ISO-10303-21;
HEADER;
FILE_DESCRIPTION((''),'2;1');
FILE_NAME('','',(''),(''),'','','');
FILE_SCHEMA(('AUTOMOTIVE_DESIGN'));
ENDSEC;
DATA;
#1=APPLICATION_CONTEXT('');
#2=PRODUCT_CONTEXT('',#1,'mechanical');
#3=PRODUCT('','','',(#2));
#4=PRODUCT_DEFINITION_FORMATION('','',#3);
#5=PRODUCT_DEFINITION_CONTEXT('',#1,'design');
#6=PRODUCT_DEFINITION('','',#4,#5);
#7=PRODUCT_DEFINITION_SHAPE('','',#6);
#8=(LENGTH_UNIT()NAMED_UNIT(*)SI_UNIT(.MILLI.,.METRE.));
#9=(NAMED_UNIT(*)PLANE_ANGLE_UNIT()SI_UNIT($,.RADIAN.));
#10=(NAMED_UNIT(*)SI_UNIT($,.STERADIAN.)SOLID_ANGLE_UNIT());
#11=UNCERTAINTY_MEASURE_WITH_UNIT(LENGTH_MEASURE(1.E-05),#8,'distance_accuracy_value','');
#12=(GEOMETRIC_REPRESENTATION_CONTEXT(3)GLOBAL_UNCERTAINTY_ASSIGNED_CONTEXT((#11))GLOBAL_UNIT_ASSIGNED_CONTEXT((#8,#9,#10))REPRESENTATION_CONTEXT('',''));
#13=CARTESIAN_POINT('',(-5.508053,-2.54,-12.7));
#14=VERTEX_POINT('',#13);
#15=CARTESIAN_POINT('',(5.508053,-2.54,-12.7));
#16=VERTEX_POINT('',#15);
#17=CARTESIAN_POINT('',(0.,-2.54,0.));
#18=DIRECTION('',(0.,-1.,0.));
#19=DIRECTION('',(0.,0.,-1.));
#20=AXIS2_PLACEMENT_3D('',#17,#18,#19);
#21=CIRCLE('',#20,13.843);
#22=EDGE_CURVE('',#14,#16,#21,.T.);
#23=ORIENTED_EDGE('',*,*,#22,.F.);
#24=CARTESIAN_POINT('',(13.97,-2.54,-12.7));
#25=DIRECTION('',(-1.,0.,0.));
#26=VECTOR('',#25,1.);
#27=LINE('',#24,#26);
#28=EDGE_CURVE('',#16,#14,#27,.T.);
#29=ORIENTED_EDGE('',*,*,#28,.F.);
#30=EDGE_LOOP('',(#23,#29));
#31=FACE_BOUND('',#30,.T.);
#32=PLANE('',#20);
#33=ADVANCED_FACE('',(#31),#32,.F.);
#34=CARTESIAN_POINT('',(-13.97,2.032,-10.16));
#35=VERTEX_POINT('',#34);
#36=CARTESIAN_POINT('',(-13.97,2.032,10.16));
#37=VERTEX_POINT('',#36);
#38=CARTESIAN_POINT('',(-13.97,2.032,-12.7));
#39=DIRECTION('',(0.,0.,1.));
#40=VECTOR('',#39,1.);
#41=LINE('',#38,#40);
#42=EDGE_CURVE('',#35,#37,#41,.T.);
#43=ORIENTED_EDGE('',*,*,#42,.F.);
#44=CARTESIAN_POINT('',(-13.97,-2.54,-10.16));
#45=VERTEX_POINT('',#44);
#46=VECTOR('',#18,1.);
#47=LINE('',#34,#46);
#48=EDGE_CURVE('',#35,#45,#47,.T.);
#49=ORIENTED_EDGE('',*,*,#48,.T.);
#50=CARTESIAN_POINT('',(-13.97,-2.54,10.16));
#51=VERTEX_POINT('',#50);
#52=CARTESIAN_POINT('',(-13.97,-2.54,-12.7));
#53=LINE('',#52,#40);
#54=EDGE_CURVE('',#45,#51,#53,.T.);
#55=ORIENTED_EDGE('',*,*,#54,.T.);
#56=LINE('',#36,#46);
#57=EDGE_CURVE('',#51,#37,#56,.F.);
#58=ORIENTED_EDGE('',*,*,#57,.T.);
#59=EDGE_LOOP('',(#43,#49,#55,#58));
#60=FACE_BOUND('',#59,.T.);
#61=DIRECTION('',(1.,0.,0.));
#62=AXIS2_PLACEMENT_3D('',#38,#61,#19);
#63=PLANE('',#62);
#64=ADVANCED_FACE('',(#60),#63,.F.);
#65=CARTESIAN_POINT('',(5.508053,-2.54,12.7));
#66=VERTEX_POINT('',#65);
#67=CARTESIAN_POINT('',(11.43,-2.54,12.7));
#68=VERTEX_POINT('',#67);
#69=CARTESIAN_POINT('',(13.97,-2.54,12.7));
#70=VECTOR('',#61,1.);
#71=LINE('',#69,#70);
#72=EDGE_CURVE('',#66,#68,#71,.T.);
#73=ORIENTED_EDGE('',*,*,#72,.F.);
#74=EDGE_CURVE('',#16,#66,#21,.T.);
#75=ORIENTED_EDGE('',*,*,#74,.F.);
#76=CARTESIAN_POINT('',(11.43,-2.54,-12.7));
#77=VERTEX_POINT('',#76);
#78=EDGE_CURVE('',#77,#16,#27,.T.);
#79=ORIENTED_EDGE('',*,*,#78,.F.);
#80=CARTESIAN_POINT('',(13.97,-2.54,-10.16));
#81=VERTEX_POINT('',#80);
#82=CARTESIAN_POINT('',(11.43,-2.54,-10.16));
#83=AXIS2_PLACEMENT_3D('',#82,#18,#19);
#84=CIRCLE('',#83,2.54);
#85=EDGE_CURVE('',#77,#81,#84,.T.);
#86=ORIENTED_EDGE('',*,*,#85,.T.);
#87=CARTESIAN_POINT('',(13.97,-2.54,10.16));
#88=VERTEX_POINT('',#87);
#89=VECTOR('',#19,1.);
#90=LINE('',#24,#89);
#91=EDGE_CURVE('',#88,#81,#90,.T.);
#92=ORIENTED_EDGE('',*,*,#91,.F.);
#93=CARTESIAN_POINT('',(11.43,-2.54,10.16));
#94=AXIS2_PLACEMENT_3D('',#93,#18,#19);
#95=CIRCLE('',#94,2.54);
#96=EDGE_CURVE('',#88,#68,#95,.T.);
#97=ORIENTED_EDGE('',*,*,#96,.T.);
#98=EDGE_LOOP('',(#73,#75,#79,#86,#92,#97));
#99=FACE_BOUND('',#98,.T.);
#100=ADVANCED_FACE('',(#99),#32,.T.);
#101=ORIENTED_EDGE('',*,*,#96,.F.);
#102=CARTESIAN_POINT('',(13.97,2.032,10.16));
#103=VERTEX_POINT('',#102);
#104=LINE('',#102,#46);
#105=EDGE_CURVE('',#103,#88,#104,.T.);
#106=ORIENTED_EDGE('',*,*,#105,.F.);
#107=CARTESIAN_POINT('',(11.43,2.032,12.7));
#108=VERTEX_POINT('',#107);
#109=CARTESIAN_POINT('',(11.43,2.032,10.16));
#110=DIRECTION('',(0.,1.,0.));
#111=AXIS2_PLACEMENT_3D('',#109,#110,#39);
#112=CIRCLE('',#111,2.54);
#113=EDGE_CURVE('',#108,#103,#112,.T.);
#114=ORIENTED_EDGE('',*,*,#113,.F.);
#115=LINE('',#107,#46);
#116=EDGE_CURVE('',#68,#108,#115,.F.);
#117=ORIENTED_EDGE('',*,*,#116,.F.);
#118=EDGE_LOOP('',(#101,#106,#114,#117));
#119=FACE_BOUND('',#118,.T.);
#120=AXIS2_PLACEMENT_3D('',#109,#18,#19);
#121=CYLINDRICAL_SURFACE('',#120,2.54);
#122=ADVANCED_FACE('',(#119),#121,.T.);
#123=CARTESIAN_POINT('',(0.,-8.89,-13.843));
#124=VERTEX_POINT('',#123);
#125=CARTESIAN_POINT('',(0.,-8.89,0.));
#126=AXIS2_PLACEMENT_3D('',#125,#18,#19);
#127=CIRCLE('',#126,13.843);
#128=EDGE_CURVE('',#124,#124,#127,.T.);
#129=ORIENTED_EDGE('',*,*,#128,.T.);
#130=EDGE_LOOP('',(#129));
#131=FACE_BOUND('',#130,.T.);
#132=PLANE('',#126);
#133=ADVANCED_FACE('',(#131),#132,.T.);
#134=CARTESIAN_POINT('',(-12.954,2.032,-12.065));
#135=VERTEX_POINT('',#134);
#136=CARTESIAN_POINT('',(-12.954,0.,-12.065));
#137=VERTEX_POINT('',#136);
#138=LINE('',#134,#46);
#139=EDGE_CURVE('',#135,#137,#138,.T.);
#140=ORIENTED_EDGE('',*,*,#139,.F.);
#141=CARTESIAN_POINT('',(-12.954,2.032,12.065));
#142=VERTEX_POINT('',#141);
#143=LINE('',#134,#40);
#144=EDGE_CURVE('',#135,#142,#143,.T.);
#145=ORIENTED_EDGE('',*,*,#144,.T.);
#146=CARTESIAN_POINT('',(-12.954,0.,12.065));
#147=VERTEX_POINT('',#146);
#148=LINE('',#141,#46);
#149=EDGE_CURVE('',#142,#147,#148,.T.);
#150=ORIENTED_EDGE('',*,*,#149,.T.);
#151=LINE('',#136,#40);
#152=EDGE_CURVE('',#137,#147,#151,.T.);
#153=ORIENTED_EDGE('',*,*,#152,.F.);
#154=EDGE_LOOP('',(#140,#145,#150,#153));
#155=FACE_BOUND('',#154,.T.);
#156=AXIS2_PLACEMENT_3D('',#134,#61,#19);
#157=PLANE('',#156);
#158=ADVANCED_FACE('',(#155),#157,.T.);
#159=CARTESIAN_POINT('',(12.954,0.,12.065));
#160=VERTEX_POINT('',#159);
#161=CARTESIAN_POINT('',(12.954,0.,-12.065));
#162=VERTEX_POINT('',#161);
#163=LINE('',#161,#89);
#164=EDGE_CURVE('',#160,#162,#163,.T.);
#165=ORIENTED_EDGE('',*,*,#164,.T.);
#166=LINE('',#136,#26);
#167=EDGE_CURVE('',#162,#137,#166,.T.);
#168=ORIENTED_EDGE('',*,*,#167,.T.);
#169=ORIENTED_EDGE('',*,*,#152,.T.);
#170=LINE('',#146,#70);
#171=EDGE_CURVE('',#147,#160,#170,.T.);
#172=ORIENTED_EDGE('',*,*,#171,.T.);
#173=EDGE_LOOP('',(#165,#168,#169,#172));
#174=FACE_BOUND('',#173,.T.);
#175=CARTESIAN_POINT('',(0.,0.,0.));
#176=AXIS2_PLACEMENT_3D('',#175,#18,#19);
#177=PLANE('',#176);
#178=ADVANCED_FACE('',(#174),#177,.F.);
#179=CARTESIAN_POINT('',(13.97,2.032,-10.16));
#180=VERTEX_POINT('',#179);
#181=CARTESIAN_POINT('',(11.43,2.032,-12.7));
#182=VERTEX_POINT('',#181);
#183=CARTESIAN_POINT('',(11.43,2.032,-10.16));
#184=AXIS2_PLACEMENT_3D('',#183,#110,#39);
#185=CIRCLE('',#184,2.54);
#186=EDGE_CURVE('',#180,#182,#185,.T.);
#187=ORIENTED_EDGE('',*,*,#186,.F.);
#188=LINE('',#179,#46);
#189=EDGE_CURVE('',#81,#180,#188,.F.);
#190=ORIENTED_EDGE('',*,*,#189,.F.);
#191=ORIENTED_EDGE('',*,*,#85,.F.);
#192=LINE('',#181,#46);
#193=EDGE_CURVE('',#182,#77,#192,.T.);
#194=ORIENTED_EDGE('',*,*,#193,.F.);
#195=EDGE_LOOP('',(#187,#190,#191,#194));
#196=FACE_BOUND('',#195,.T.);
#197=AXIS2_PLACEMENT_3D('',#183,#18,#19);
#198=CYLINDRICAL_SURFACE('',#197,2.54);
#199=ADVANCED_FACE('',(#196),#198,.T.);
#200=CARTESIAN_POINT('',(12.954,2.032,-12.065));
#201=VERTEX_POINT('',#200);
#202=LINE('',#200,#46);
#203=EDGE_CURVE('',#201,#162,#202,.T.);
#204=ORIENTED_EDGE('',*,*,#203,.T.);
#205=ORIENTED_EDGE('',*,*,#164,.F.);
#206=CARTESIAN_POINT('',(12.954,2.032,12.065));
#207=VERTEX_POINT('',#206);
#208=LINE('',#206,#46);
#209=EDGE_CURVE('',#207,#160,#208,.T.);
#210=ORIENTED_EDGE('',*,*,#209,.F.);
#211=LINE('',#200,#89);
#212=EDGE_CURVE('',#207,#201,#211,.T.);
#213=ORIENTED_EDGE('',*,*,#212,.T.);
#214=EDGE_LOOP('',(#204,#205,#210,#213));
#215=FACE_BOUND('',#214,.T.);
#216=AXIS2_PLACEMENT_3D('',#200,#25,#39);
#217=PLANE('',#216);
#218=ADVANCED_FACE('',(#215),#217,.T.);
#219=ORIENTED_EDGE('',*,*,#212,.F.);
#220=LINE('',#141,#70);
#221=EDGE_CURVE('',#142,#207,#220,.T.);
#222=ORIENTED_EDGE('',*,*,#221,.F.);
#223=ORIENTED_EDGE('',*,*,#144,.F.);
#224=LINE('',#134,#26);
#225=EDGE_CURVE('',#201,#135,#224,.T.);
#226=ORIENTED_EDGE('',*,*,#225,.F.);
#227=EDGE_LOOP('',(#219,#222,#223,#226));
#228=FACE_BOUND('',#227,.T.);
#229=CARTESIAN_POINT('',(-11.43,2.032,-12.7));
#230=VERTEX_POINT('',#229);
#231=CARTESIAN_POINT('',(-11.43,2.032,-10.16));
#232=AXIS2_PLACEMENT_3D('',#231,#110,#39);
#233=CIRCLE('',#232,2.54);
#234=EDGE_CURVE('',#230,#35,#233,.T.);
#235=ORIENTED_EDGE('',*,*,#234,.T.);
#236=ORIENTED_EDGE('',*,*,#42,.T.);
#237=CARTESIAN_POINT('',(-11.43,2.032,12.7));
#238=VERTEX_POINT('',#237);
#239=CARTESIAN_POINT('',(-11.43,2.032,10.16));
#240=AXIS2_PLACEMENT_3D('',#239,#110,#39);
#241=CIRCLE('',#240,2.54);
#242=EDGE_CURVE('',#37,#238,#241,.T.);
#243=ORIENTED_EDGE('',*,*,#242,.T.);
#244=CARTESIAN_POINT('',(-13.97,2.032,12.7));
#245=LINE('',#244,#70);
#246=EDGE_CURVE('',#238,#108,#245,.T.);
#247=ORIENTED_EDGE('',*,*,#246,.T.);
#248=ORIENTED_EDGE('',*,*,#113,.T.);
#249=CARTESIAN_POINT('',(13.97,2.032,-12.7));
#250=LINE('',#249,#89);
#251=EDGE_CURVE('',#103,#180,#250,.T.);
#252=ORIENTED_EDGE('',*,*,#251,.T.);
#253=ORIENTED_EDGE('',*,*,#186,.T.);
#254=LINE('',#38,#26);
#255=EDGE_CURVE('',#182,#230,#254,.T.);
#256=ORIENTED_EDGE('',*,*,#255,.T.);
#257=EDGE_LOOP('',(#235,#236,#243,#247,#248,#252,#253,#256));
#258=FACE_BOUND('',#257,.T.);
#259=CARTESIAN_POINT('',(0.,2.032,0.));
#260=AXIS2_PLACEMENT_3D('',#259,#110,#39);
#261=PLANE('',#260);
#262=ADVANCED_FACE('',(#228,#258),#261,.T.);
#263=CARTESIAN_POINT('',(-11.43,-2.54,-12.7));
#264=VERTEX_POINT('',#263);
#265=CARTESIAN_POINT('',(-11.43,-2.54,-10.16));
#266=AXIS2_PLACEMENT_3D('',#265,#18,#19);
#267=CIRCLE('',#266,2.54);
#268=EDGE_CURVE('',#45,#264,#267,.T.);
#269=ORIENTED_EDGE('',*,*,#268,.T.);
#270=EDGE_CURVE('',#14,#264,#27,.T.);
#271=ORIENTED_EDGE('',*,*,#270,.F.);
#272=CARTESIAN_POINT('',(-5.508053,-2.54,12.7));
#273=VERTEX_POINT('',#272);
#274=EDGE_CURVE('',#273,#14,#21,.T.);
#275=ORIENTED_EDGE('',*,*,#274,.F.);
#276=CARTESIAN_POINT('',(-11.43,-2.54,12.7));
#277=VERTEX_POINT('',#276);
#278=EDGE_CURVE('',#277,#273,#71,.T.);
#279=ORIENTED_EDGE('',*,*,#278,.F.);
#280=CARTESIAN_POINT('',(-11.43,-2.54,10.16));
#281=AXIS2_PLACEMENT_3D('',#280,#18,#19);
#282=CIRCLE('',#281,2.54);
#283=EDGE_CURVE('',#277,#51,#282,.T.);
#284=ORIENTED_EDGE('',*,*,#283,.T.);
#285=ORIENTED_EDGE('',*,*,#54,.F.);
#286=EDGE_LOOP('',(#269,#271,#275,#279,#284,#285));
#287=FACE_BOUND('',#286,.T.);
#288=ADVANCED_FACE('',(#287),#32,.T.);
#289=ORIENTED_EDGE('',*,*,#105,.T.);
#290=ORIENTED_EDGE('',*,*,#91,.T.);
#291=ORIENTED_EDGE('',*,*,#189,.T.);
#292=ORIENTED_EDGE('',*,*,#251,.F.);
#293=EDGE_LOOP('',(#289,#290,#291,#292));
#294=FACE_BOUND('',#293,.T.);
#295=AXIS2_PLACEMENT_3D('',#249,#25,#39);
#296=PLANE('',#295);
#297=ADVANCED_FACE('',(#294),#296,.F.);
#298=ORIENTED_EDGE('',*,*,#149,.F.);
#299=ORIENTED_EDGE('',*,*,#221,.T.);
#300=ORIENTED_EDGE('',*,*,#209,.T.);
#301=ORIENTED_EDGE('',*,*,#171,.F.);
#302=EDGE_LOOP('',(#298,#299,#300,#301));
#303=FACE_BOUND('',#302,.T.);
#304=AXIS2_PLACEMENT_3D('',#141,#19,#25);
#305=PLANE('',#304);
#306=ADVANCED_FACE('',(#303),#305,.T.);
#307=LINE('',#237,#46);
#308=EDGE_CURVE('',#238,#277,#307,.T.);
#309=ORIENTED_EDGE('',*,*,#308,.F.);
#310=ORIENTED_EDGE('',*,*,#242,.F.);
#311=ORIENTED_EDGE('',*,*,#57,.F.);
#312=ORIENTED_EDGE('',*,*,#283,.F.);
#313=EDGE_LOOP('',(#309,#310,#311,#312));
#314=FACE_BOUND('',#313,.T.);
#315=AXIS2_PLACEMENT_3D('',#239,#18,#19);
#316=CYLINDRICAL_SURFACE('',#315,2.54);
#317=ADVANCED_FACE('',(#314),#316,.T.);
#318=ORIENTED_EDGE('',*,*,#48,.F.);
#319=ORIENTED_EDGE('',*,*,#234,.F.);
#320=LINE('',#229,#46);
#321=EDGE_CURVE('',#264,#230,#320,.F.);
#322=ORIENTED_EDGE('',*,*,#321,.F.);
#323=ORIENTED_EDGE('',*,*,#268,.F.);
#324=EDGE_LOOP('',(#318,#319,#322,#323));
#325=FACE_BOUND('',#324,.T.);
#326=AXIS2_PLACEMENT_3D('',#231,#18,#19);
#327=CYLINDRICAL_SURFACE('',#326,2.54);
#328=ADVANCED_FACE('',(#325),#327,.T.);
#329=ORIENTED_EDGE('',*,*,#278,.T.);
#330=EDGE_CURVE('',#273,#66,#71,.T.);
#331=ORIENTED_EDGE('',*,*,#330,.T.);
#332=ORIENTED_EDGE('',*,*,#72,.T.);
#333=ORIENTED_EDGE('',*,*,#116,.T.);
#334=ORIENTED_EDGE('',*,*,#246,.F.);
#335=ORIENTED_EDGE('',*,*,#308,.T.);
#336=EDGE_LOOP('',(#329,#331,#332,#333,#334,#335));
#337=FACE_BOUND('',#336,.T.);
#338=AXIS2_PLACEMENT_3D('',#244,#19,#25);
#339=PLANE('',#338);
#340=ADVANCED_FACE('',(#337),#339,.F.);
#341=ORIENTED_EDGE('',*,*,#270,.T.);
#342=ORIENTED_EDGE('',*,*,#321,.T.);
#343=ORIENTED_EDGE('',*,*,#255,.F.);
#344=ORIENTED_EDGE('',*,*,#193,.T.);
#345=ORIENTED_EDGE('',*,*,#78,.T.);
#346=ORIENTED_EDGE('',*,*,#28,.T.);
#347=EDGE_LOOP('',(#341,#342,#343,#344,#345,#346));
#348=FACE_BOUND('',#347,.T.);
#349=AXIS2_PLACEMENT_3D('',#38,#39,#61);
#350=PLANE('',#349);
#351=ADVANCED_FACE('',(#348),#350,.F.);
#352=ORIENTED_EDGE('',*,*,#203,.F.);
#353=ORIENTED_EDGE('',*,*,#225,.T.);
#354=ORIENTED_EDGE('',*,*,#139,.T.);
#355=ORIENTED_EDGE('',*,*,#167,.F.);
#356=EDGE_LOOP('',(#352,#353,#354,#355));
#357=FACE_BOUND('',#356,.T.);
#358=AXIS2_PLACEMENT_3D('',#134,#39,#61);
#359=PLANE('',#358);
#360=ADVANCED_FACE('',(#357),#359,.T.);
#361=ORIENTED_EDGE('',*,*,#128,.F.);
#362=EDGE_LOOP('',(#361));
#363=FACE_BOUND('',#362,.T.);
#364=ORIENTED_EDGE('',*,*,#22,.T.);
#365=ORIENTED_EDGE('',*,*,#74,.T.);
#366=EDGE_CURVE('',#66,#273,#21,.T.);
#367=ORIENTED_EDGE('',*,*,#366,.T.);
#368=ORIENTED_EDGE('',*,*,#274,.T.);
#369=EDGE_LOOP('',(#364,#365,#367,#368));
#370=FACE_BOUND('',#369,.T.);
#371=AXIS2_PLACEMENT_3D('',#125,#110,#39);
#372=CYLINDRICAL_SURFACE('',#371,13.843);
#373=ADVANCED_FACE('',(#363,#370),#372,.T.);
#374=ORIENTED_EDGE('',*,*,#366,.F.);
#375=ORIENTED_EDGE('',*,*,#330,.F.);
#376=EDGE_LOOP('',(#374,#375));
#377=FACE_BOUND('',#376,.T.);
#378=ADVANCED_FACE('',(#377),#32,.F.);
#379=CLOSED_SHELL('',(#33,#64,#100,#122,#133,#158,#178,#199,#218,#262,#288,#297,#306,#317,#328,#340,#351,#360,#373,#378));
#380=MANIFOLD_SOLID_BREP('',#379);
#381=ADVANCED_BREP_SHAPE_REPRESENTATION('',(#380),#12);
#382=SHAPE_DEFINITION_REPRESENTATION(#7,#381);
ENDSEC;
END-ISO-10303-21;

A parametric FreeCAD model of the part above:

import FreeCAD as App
import Part
import Sketcher
Q = App.Units.Quantity


def edges_at(feature, points):
    """Names of the edges that pass closest to the given points."""
    edges = feature.Shape.Edges
    near = lambda p: min(range(len(edges)), key=lambda i: edges[i].distToShape(Part.Vertex(*p))[0])
    return sorted({f"Edge{near(p) + 1}" for p in points})


def add_polygon(sketch, points):
    """Adds a closed chain of lines whose ends are joined by coincident constraints."""
    first, n = sketch.GeometryCount, len(points)
    for a, b in zip(points, points[1:] + points[:1]):
        sketch.addGeometry(Part.LineSegment(App.Vector(*a, 0), App.Vector(*b, 0)), False)
    for i in range(n):
        sketch.addConstraint(Sketcher.Constraint("Coincident", first + i, 2, first + (i + 1) % n, 1))

doc = App.newDocument("Part")
body = doc.addObject("PartDesign::Body", "Body")

# Sketch on XZ plane
sketch1 = doc.addObject("Sketcher::SketchObject", "Sketch")
body.addObject(sketch1)
sketch1.AttachmentSupport = (doc.XZ_Plane, [""])
sketch1.MapMode = "FlatFace"
add_polygon(sketch1, [(-14, -13), (-14, 13), (14, 13), (14, -13)])  # lines 0-3
add_polygon(sketch1, [(13, 12), (-13, 12), (-13, -12), (13, -12)])  # lines 4-7
sketch1.addConstraint([
    Sketcher.Constraint("Vertical", 0),
    Sketcher.Constraint("Horizontal", 1),
    Sketcher.Constraint("Vertical", 2),
    Sketcher.Constraint("Horizontal", 3),
    Sketcher.Constraint("Horizontal", 4),
    Sketcher.Constraint("Vertical", 5),
    Sketcher.Constraint("Horizontal", 6),
    Sketcher.Constraint("Vertical", 7),
    Sketcher.Constraint("Symmetric", 0, 2, 2, 2, -1, 1),
    Sketcher.Constraint("Symmetric", 4, 2, 6, 2, -1, 1),
    Sketcher.Constraint("DistanceY", 0, 1, 0, 2, Q("1 in")),
    Sketcher.Constraint("DistanceX", 1, 1, 1, 2, Q("1.1 in")),
    Sketcher.Constraint("DistanceX", 4, 2, 4, 1, Q("1.02 in")),
    Sketcher.Constraint("DistanceY", 5, 2, 5, 1, Q("0.95 in")),
])
pad1 = doc.addObject("PartDesign::Pad", "Pad")
body.addObject(pad1)
pad1.Profile = sketch1
pad1.Length = Q("0.08 in")
pad1.Reversed = True

# Sketch on XZ plane
sketch2 = doc.addObject("Sketcher::SketchObject", "Sketch001")
body.addObject(sketch2)
sketch2.AttachmentSupport = (doc.XZ_Plane, [""])
sketch2.MapMode = "FlatFace"
add_polygon(sketch2, [(-14, -13), (-14, 13), (14, 13), (14, -13)])  # lines 0-3
sketch2.addConstraint([
    Sketcher.Constraint("Vertical", 0),
    Sketcher.Constraint("Horizontal", 1),
    Sketcher.Constraint("Vertical", 2),
    Sketcher.Constraint("Horizontal", 3),
    Sketcher.Constraint("Symmetric", 0, 2, 2, 2, -1, 1),
    Sketcher.Constraint("DistanceY", 0, 1, 0, 2, Q("1 in")),
    Sketcher.Constraint("DistanceX", 1, 1, 1, 2, Q("1.1 in")),
])
pad2 = doc.addObject("PartDesign::Pad", "Pad001")
body.addObject(pad2)
pad2.Profile = sketch2
pad2.Length = Q("0.1 in")

# Sketch on XZ plane
sketch3 = doc.addObject("Sketcher::SketchObject", "Sketch002")
body.addObject(sketch3)
sketch3.AttachmentSupport = (doc.XZ_Plane, [""])
sketch3.MapMode = "FlatFace"
sketch3.AttachmentOffset = App.Placement(App.Vector(0, 0, 0.1 * 25.4), App.Rotation())
sketch3.addGeometry(Part.Circle(App.Vector(0, 0, 0), App.Vector(0, 0, 1), 14), False)
sketch3.addConstraint([
    Sketcher.Constraint("Coincident", 0, 3, -1, 1),
    Sketcher.Constraint("Diameter", 0, Q("1.09 in")),
])
pad3 = doc.addObject("PartDesign::Pad", "Pad002")
body.addObject(pad3)
pad3.Profile = sketch3
pad3.Length = Q("0.25 in")
doc.recompute()

fillet = doc.addObject("PartDesign::Fillet", "Fillet")
body.addObject(fillet)
fillet.Base = (pad3, edges_at(pad3, [
    (13.97, -0.254, 12.7),
    (-13.97, -0.254, 12.7),
    (-13.97, -0.254, -12.7),
    (13.97, -0.254, -12.7),
]))
fillet.Radius = Q("0.1 in")

doc.recompute()
